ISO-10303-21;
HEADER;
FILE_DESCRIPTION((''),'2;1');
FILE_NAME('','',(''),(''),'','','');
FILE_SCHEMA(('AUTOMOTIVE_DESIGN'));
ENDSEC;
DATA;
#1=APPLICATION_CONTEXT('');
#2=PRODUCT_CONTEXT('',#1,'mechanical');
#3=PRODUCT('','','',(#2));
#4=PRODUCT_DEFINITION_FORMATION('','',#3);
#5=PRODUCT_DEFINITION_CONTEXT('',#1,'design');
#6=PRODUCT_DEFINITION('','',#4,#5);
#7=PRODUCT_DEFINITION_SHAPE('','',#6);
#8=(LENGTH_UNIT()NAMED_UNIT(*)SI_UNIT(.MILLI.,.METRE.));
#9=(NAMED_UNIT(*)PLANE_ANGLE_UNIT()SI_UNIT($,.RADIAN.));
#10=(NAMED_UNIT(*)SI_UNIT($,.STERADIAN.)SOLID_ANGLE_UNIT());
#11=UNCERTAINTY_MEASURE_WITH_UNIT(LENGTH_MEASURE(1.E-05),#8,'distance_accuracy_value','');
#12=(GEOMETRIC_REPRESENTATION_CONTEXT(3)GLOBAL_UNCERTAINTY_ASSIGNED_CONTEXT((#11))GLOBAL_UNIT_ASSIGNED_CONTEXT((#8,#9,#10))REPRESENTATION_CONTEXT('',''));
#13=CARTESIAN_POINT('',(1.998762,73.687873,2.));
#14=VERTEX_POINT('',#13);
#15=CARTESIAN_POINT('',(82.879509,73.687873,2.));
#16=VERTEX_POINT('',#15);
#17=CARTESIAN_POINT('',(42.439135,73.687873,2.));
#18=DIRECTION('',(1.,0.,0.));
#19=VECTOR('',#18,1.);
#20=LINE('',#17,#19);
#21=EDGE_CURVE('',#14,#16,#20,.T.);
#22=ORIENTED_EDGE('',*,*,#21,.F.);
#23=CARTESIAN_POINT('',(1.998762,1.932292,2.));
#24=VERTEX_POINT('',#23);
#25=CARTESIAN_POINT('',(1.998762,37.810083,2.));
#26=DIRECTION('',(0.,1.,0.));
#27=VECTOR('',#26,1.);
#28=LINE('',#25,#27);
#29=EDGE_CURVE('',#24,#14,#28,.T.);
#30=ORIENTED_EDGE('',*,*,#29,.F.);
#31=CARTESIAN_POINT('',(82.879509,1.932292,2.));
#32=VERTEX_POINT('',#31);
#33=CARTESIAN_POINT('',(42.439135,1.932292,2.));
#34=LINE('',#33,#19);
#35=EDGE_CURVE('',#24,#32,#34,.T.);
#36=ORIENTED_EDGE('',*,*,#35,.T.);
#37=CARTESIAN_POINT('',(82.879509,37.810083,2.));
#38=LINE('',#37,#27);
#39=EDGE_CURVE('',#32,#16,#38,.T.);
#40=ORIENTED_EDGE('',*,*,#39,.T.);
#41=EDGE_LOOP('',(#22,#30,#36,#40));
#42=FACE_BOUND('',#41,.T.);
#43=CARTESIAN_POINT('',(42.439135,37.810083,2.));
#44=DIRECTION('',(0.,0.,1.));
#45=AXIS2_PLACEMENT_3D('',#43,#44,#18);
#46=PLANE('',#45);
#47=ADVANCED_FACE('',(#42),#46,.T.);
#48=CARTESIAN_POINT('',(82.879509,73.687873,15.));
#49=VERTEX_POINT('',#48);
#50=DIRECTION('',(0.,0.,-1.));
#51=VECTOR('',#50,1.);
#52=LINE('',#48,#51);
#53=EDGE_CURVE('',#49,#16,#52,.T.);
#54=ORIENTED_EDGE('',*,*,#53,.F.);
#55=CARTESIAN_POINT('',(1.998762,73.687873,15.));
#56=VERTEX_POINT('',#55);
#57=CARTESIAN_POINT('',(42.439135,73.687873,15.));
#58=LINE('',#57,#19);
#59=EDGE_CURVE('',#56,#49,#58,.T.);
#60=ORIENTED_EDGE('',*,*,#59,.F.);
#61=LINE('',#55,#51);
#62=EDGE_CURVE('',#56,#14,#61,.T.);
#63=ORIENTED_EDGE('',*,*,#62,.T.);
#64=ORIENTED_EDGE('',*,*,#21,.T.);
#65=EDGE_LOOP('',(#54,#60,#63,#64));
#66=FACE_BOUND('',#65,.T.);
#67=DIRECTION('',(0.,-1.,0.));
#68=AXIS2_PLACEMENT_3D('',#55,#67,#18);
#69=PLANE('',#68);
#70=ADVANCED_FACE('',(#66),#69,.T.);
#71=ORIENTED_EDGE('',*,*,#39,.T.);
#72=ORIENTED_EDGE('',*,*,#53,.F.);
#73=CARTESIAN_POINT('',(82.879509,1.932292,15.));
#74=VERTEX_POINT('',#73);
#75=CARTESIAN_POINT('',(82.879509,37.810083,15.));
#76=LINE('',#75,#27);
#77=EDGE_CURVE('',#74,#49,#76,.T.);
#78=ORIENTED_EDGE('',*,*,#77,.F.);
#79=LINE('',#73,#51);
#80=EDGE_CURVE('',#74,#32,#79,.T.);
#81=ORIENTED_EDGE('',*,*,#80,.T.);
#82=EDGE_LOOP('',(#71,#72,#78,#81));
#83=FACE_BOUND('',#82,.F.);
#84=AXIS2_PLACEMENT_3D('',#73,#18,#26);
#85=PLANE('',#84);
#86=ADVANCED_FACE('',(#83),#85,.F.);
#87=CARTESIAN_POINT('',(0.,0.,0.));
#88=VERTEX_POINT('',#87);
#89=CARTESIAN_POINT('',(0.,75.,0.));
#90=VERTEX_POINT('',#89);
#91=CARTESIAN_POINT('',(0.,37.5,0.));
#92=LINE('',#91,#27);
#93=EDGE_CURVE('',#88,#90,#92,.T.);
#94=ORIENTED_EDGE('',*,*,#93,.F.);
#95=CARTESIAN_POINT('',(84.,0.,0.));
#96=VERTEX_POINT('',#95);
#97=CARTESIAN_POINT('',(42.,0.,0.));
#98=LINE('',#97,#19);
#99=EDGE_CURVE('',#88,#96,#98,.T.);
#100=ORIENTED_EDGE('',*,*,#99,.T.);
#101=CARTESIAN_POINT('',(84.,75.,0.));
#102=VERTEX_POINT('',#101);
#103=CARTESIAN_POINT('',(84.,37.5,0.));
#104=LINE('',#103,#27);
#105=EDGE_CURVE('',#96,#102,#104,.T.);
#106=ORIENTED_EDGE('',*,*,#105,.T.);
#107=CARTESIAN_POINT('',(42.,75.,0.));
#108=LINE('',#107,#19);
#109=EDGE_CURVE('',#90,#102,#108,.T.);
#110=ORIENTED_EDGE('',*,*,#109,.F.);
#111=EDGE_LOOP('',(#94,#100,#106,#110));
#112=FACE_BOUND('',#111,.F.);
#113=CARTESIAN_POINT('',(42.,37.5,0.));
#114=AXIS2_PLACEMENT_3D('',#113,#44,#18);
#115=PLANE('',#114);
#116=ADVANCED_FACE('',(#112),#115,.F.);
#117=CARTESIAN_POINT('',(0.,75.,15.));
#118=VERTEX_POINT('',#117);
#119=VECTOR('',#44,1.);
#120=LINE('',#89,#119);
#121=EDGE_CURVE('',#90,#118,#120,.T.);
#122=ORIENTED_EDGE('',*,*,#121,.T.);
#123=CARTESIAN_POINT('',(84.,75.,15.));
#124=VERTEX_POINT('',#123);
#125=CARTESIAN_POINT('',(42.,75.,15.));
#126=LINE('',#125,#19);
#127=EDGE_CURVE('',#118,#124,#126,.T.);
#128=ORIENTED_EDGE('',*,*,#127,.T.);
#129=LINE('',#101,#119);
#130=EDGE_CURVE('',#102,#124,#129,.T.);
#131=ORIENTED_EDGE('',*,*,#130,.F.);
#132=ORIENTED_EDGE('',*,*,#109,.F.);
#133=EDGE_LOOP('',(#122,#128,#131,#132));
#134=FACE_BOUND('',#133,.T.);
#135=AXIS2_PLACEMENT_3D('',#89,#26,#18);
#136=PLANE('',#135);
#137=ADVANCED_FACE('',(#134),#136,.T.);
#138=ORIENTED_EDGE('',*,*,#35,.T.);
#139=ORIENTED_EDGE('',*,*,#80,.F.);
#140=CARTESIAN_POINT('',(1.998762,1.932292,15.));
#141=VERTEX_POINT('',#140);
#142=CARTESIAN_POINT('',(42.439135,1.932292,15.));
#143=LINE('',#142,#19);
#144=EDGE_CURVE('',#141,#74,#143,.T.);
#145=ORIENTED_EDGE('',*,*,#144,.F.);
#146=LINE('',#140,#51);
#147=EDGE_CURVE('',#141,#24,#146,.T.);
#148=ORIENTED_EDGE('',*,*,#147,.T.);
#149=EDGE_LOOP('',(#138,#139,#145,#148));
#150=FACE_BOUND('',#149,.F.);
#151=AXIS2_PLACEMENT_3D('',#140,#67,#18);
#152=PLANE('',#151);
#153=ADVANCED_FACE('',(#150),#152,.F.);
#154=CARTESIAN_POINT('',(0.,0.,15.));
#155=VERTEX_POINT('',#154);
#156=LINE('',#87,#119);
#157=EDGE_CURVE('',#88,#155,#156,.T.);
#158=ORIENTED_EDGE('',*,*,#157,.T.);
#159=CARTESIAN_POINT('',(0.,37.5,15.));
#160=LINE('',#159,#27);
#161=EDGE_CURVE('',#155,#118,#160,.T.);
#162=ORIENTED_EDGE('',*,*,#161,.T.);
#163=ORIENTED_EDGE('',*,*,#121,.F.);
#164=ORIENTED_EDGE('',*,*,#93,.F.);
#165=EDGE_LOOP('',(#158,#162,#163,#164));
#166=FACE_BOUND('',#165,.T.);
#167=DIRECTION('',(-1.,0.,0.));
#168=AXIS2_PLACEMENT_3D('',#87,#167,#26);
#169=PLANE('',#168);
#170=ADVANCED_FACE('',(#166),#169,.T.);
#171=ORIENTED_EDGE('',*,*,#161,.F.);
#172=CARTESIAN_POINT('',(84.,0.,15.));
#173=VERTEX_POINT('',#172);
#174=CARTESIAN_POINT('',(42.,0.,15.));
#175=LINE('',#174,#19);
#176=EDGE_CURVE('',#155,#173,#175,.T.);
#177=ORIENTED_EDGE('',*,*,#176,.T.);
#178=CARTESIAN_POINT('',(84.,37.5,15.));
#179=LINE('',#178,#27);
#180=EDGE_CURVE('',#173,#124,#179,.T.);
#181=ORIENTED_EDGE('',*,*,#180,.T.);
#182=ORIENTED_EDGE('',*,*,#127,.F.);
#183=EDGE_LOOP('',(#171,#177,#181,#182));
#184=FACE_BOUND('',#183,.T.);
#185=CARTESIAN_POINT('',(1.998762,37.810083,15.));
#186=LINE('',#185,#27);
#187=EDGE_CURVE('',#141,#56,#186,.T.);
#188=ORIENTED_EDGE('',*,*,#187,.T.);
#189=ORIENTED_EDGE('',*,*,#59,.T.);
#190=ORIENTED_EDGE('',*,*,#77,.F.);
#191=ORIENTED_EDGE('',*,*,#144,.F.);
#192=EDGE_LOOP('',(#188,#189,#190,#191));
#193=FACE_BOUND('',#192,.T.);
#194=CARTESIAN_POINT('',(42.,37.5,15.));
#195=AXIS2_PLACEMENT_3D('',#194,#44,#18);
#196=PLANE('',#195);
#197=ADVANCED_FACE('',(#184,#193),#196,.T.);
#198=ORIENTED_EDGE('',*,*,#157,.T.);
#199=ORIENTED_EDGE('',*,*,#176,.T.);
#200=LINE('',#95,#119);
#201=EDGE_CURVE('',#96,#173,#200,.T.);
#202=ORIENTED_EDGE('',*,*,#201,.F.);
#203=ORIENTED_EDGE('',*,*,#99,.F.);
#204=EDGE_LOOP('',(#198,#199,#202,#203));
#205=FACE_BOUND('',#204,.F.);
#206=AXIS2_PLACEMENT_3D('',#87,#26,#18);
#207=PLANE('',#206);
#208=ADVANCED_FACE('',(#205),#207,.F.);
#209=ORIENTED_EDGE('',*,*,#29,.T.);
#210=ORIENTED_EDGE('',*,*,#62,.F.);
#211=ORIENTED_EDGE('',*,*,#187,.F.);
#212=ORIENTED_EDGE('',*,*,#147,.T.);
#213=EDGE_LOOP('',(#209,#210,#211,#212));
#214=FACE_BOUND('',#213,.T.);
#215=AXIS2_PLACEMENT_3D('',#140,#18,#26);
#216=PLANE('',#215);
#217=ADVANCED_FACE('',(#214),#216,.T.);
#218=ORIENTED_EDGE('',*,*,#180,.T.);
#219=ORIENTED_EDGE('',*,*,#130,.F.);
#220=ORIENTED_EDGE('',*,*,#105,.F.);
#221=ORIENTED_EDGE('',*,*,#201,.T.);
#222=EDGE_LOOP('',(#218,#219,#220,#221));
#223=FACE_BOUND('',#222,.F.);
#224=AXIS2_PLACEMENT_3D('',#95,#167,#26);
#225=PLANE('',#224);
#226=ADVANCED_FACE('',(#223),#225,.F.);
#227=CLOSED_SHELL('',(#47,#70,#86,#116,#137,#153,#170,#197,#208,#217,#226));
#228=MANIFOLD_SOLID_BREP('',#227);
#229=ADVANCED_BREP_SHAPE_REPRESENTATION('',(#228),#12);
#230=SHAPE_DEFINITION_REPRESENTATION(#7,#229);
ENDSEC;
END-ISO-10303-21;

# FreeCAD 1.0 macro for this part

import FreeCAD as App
import Part
import Sketcher
from FreeCAD import Vector
Q = App.Units.Quantity

doc = App.newDocument("Part")
body = doc.addObject("PartDesign::Body", "Body")

# Sketch on XY plane
sketch1 = body.newObject("Sketcher::SketchObject", "Sketch")
sketch1.AttachmentSupport = (doc.getObject("XY_Plane"), [""])
sketch1.MapMode = "FlatFace"
sketch1.addGeometry([
    Part.LineSegment(Vector(0, 75, 0), Vector(0, 0, 0)),
    Part.LineSegment(Vector(0, 0, 0), Vector(84, 0, 0)),
    Part.LineSegment(Vector(84, 0, 0), Vector(84, 75, 0)),
    Part.LineSegment(Vector(84, 75, 0), Vector(0, 75, 0)),
], False)
sketch1.addConstraint([
    Sketcher.Constraint("Coincident", 0, 2, 1, 1),
    Sketcher.Constraint("Coincident", 1, 2, 2, 1),
    Sketcher.Constraint("Coincident", 2, 2, 3, 1),
    Sketcher.Constraint("Coincident", 3, 2, 0, 1),
    Sketcher.Constraint("Vertical", 0),
    Sketcher.Constraint("Horizontal", 1),
    Sketcher.Constraint("Vertical", 2),
    Sketcher.Constraint("Horizontal", 3),
    Sketcher.Constraint("Coincident", 0, 2, -1, 1),
    Sketcher.Constraint("DistanceX", 1, 1, 1, 2, Q("84 mm")),
    Sketcher.Constraint("DistanceY", 0, 2, 0, 1, Q("75 mm")),
])
pad1 = body.newObject("PartDesign::Pad", "Pad")
pad1.Profile = sketch1
pad1.Length = 15

# Sketch on XY plane
sketch2 = body.newObject("Sketcher::SketchObject", "Sketch001")
sketch2.AttachmentSupport = (doc.getObject("XY_Plane"), [""])
sketch2.MapMode = "FlatFace"
sketch2.AttachmentOffset = App.Placement(Vector(0, 0, 15), App.Rotation())
sketch2.addGeometry([
    Part.LineSegment(Vector(2, 74, 0), Vector(2, 2, 0)),
    Part.LineSegment(Vector(2, 2, 0), Vector(83, 2, 0)),
    Part.LineSegment(Vector(83, 2, 0), Vector(83, 74, 0)),
    Part.LineSegment(Vector(83, 74, 0), Vector(2, 74, 0)),
], False)
sketch2.addConstraint([
    Sketcher.Constraint("Coincident", 0, 2, 1, 1),
    Sketcher.Constraint("Coincident", 1, 2, 2, 1),
    Sketcher.Constraint("Coincident", 2, 2, 3, 1),
    Sketcher.Constraint("Coincident", 3, 2, 0, 1),
    Sketcher.Constraint("Vertical", 0),
    Sketcher.Constraint("Horizontal", 1),
    Sketcher.Constraint("Vertical", 2),
    Sketcher.Constraint("Horizontal", 3),
    Sketcher.Constraint("DistanceY", 0, 2, 0, 1, Q("71.755581 mm")),
    Sketcher.Constraint("DistanceX", 1, 1, 1, 2, Q("80.880747 mm")),
    Sketcher.Constraint("DistanceX", -1, 1, 0, 2, Q("1.998762 mm")),
    Sketcher.Constraint("DistanceY", -1, 1, 0, 2, Q("1.932292 mm")),
])
pocket1 = body.newObject("PartDesign::Pocket", "Pocket")
pocket1.Profile = sketch2
pocket1.Length = 13

doc.recompute()
